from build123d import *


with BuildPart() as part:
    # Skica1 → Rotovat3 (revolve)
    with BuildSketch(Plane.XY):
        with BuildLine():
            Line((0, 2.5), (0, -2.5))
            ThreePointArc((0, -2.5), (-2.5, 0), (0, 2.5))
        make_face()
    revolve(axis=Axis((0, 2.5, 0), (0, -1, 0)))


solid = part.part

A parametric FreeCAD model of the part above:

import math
import FreeCAD as App
import Part
import Sketcher

doc = App.newDocument("Part")
body = doc.addObject("PartDesign::Body", "Body")

sketch1 = body.newObject("Sketcher::SketchObject", "Sketch")
sketch1.AttachmentSupport = (doc.getObject("XY_Plane"), [""])
sketch1.MapMode = "FlatFace"
sketch1.addGeometry(Part.LineSegment(App.Vector(0, -2.5, 0), App.Vector(0, 2.5, 0)), False)
sketch1.addGeometry(Part.ArcOfCircle(Part.Circle(App.Vector(0, 0, 0), App.Vector(0, 0, 1), 2.5), math.radians(90), math.radians(270)), False)
sketch1.addConstraint(Sketcher.Constraint("Coincident", 0, 1, 1, 2))
sketch1.addConstraint(Sketcher.Constraint("Coincident", 1, 1, 0, 2))
sketch1.addConstraint(Sketcher.Constraint("Vertical", 0))
sketch1.addConstraint(Sketcher.Constraint("Coincident", 1, 3, -1, 1))
sketch1.addConstraint(Sketcher.Constraint("PointOnObject", 0, 1, -2))
sketch1.addConstraint(Sketcher.Constraint("Radius", 1, 2.5))
revolution = body.newObject("PartDesign::Revolution", "Revolution")
revolution.Profile = sketch1
revolution.ReferenceAxis = (sketch1, ["V_Axis"])
revolution.Angle = 360

doc.recompute()
